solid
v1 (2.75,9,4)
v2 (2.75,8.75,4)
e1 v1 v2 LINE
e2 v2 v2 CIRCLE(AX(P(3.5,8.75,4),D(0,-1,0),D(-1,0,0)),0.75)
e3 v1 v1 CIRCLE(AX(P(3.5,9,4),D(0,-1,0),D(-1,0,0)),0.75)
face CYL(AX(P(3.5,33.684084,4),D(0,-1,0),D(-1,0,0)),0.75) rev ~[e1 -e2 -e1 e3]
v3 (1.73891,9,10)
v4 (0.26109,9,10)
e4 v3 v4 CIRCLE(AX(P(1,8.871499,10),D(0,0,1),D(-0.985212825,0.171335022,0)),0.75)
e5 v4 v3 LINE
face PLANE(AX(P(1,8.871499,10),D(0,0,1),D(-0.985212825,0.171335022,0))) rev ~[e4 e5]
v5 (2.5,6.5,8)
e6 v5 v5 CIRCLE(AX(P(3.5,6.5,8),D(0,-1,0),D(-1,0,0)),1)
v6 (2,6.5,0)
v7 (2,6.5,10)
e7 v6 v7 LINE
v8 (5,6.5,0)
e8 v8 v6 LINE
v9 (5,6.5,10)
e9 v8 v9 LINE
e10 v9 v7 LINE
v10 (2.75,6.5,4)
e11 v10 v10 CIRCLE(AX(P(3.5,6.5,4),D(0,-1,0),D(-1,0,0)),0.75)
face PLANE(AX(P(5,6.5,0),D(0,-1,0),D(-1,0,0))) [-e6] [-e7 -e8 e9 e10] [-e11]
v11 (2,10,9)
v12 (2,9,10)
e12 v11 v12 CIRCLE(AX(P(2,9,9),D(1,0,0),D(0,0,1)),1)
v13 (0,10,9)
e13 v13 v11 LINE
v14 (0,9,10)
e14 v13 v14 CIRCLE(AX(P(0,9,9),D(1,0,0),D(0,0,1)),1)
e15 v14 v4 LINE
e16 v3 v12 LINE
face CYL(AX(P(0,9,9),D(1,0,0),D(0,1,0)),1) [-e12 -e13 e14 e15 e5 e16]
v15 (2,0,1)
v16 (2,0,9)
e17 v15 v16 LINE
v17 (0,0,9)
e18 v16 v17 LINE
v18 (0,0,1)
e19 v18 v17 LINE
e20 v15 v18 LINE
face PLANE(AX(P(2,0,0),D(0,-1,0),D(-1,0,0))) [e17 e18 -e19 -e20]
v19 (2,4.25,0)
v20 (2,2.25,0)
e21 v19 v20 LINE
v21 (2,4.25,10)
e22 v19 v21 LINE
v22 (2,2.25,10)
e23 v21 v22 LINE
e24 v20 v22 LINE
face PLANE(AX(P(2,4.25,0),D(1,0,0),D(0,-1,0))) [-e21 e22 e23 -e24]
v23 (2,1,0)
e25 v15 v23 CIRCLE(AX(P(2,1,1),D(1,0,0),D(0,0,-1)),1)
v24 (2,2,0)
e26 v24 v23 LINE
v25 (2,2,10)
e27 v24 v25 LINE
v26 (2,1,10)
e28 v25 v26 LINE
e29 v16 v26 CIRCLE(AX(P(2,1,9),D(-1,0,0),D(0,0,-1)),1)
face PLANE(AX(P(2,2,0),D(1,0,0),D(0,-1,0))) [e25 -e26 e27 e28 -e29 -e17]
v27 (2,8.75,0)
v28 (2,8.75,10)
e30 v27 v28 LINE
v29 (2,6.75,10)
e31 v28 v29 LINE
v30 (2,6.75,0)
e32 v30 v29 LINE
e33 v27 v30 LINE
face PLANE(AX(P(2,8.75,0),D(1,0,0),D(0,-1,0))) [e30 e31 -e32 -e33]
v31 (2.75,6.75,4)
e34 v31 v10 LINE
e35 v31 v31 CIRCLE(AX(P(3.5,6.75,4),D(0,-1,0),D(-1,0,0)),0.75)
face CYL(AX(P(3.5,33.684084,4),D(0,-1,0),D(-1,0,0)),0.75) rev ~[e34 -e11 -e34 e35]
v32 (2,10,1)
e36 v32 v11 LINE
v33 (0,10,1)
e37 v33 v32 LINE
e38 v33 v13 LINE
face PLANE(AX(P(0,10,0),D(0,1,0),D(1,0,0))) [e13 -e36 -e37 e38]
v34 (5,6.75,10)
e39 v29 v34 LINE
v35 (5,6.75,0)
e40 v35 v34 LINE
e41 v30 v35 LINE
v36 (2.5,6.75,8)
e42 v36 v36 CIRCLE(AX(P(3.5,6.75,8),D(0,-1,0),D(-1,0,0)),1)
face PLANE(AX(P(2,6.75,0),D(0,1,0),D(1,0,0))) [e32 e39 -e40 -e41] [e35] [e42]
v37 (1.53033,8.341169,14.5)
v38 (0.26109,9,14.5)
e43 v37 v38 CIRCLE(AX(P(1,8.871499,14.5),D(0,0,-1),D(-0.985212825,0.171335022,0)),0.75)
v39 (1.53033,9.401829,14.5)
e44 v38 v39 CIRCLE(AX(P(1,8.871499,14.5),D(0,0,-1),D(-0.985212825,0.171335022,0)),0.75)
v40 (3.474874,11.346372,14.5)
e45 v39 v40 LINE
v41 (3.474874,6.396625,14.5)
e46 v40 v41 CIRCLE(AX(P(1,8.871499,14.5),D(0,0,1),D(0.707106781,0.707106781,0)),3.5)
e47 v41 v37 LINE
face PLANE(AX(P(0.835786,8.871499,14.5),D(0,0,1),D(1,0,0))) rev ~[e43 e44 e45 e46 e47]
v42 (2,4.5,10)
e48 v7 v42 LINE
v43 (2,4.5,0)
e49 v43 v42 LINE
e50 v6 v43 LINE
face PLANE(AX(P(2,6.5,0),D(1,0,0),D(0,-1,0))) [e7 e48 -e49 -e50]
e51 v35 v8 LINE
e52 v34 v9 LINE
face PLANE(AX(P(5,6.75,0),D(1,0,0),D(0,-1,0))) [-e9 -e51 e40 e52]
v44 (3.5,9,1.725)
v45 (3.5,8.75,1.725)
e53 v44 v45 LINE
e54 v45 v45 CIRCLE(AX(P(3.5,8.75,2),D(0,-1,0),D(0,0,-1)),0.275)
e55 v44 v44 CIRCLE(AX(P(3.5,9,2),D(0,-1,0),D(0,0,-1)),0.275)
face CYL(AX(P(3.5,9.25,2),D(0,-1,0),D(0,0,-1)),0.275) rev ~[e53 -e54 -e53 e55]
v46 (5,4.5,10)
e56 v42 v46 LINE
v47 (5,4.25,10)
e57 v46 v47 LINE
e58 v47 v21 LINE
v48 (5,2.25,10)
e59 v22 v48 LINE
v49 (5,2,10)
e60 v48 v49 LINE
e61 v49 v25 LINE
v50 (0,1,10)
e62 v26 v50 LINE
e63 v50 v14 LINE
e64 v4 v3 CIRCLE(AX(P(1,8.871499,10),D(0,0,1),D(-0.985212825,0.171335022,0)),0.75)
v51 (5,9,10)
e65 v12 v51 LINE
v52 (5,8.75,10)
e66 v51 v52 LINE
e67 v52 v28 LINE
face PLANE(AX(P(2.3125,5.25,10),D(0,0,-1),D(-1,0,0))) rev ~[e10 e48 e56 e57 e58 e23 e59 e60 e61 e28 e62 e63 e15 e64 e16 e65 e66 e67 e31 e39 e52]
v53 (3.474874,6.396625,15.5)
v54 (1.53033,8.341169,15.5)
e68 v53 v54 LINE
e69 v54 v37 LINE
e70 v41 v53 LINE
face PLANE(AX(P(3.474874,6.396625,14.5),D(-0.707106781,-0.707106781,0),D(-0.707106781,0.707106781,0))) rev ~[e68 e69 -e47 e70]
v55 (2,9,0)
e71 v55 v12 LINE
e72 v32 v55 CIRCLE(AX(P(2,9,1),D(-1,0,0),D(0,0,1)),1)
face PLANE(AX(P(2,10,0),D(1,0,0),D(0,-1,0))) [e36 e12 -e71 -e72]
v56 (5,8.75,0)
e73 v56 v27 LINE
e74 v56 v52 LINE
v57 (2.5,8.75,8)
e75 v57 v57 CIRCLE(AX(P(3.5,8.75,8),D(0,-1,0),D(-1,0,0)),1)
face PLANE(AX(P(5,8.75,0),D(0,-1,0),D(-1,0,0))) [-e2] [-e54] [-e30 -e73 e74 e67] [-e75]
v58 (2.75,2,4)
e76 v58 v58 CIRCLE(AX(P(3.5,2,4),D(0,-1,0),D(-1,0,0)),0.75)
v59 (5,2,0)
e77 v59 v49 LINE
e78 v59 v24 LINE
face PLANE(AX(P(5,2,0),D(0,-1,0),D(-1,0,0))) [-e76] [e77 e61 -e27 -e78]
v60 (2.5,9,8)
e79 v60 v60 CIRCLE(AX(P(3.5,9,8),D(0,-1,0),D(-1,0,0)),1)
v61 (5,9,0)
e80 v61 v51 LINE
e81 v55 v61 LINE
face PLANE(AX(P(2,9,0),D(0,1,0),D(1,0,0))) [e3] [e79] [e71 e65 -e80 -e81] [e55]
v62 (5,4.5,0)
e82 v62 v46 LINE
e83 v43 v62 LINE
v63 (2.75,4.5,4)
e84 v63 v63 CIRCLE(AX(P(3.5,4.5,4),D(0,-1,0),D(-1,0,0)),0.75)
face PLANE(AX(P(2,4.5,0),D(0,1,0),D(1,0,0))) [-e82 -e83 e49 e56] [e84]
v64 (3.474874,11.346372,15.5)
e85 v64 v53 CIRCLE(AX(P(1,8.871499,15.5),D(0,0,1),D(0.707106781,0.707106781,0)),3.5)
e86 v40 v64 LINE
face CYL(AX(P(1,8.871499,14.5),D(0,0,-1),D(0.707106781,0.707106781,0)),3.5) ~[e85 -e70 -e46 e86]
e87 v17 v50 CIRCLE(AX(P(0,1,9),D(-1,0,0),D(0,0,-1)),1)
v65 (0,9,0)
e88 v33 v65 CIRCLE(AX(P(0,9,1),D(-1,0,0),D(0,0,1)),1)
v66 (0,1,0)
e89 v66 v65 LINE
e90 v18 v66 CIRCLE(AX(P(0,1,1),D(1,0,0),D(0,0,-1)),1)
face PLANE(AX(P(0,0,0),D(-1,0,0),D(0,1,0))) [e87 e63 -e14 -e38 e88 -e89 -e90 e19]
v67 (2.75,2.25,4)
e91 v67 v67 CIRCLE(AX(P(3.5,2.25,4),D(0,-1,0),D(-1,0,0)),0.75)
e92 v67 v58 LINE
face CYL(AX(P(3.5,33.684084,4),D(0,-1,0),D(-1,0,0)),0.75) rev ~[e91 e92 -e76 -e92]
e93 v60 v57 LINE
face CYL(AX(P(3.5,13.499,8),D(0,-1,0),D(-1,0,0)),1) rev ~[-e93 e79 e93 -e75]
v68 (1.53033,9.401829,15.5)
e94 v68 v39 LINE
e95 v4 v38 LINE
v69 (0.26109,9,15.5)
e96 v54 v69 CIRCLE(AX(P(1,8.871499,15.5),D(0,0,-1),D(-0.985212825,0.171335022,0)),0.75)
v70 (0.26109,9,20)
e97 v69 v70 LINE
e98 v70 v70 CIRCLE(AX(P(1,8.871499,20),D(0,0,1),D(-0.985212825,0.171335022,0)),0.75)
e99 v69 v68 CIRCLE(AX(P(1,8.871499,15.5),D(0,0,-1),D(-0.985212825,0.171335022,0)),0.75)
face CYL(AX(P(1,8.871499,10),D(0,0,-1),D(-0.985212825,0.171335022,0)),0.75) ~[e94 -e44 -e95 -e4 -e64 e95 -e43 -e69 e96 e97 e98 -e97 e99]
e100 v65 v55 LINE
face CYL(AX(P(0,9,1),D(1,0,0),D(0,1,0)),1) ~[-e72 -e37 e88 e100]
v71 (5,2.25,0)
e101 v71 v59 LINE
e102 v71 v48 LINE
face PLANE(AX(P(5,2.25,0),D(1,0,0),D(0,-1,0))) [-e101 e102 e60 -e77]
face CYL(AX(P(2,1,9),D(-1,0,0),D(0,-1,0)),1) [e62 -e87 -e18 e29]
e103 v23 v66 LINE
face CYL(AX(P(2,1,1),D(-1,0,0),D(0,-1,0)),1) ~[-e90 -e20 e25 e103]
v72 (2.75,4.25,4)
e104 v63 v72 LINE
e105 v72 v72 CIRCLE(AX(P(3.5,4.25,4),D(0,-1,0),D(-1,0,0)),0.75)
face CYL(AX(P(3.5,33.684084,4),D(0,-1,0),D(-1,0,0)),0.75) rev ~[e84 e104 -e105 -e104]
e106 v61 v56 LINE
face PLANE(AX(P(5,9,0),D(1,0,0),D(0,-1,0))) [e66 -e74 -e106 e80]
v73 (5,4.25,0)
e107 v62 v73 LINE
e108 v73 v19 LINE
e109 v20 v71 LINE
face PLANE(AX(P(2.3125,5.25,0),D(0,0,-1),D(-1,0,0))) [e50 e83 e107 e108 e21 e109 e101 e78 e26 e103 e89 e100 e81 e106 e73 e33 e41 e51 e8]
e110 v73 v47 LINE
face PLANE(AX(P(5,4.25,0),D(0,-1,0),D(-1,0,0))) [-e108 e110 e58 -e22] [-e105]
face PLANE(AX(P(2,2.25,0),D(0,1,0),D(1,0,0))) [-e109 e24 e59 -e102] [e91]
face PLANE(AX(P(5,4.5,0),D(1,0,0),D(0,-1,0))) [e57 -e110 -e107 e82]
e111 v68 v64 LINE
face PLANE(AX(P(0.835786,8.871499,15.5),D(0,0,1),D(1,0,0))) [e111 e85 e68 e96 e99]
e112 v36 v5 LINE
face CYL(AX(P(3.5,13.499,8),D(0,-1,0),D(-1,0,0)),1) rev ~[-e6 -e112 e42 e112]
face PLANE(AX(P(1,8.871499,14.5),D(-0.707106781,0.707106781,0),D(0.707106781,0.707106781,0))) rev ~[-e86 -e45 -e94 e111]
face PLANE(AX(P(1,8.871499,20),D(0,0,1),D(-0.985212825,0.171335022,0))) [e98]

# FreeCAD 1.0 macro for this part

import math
import FreeCAD as App
import Part
import Sketcher

V = App.Vector


def edges_at(feature, points):
    """Names of the edges that pass closest to the given points."""
    edges = feature.Shape.Edges
    near = lambda p: min(range(len(edges)), key=lambda i: edges[i].distToShape(Part.Vertex(*p))[0])
    return sorted({f"Edge{near(p) + 1}" for p in points})

doc = App.newDocument("Part")
body = doc.addObject("PartDesign::Body", "Body")

sketch1 = doc.addObject("Sketcher::SketchObject", "Sketch")
body.addObject(sketch1)
sketch1.AttachmentSupport = (doc.XY_Plane, [""])
sketch1.MapMode = "FlatFace"
sketch1.addGeometry([
    Part.LineSegment(V(0, 10, 0), V(0, 0, 0)),
    Part.LineSegment(V(0, 0, 0), V(2, 0, 0)),
    Part.LineSegment(V(2, 0, 0), V(2, 2, 0)),
    Part.LineSegment(V(2, 2, 0), V(5, 2, 0)),
    Part.LineSegment(V(5, 2, 0), V(5, 2.25, 0)),
    Part.LineSegment(V(5, 2.25, 0), V(2, 2.25, 0)),
    Part.LineSegment(V(2, 2.25, 0), V(2, 4.25, 0)),
    Part.LineSegment(V(2, 4.25, 0), V(5, 4.25, 0)),
    Part.LineSegment(V(5, 4.25, 0), V(5, 4.5, 0)),
    Part.LineSegment(V(5, 4.5, 0), V(2, 4.5, 0)),
    Part.LineSegment(V(2, 4.5, 0), V(2, 6.5, 0)),
    Part.LineSegment(V(2, 6.5, 0), V(5, 6.5, 0)),
    Part.LineSegment(V(5, 6.5, 0), V(5, 6.75, 0)),
    Part.LineSegment(V(5, 6.75, 0), V(2, 6.75, 0)),
    Part.LineSegment(V(2, 6.75, 0), V(2, 8.75, 0)),
    Part.LineSegment(V(2, 8.75, 0), V(5, 8.75, 0)),
    Part.LineSegment(V(5, 8.75, 0), V(5, 9, 0)),
    Part.LineSegment(V(5, 9, 0), V(2, 9, 0)),
    Part.LineSegment(V(2, 9, 0), V(2, 10, 0)),
    Part.LineSegment(V(2, 10, 0), V(0, 10, 0)),
], False)
sketch1.addConstraint([
    Sketcher.Constraint("Coincident", 0, 2, 1, 1),
    Sketcher.Constraint("Coincident", 1, 2, 2, 1),
    Sketcher.Constraint("Coincident", 2, 2, 3, 1),
    Sketcher.Constraint("Coincident", 3, 2, 4, 1),
    Sketcher.Constraint("Coincident", 4, 2, 5, 1),
    Sketcher.Constraint("Coincident", 5, 2, 6, 1),
    Sketcher.Constraint("Coincident", 6, 2, 7, 1),
    Sketcher.Constraint("Coincident", 7, 2, 8, 1),
    Sketcher.Constraint("Coincident", 8, 2, 9, 1),
    Sketcher.Constraint("Coincident", 9, 2, 10, 1),
    Sketcher.Constraint("Coincident", 10, 2, 11, 1),
    Sketcher.Constraint("Coincident", 11, 2, 12, 1),
    Sketcher.Constraint("Coincident", 12, 2, 13, 1),
    Sketcher.Constraint("Coincident", 13, 2, 14, 1),
    Sketcher.Constraint("Coincident", 14, 2, 15, 1),
    Sketcher.Constraint("Coincident", 15, 2, 16, 1),
    Sketcher.Constraint("Coincident", 16, 2, 17, 1),
    Sketcher.Constraint("Coincident", 17, 2, 18, 1),
    Sketcher.Constraint("Coincident", 18, 2, 19, 1),
    Sketcher.Constraint("Coincident", 19, 2, 0, 1),
    Sketcher.Constraint("Vertical", 0),
    Sketcher.Constraint("Horizontal", 1),
    Sketcher.Constraint("Vertical", 2),
    Sketcher.Constraint("Horizontal", 3),
    Sketcher.Constraint("Vertical", 4),
    Sketcher.Constraint("Horizontal", 5),
    Sketcher.Constraint("Vertical", 6),
    Sketcher.Constraint("Horizontal", 7),
    Sketcher.Constraint("Vertical", 8),
    Sketcher.Constraint("Horizontal", 9),
    Sketcher.Constraint("Vertical", 10),
    Sketcher.Constraint("Horizontal", 11),
    Sketcher.Constraint("Vertical", 12),
    Sketcher.Constraint("Horizontal", 13),
    Sketcher.Constraint("Vertical", 14),
    Sketcher.Constraint("Horizontal", 15),
    Sketcher.Constraint("Vertical", 16),
    Sketcher.Constraint("Horizontal", 17),
    Sketcher.Constraint("Vertical", 18),
    Sketcher.Constraint("Horizontal", 19),
    Sketcher.Constraint("Coincident", 0, 2, -1, 1),
    Sketcher.Constraint("Vertical", 2, 2, 5, 2),
    Sketcher.Constraint("Vertical", 4, 2, 7, 2),
    Sketcher.Constraint("Vertical", 6, 2, 9, 2),
    Sketcher.Constraint("Vertical", 8, 2, 11, 2),
    Sketcher.Constraint("Vertical", 10, 2, 13, 2),
    Sketcher.Constraint("Vertical", 12, 2, 15, 2),
    Sketcher.Constraint("Vertical", 14, 2, 17, 2),
    Sketcher.Constraint("Equal", 19, 2),
    Sketcher.Constraint("Equal", 2, 6),
    Sketcher.Constraint("Equal", 4, 8),
    Sketcher.Constraint("Equal", 6, 10),
    Sketcher.Constraint("Equal", 8, 12),
    Sketcher.Constraint("Equal", 10, 14),
    Sketcher.Constraint("Equal", 12, 16),
    Sketcher.Constraint("DistanceX", 1, 1, 1, 2, 2.0),
    Sketcher.Constraint("DistanceX", 3, 1, 3, 2, 3.0),
    Sketcher.Constraint("DistanceY", 0, 2, 0, 1, 10.0),
    Sketcher.Constraint("DistanceY", 18, 1, 18, 2, 1.0),
])
pad1 = doc.addObject("PartDesign::Pad", "Pad")
body.addObject(pad1)
pad1.Profile = sketch1
pad1.Length = 10
doc.recompute()

fillet = doc.addObject("PartDesign::Fillet", "Fillet")
body.addObject(fillet)
fillet.Base = (pad1, edges_at(pad1, [
    (1, 10, 0),
    (1, 0, 0),
    (1, 0, 10),
    (1, 10, 10),
]))
fillet.Radius = 1

sketch2 = doc.addObject("Sketcher::SketchObject", "Sketch001")
body.addObject(sketch2)
sketch2.AttachmentSupport = (doc.XY_Plane, [""])
sketch2.MapMode = "FlatFace"
sketch2.AttachmentOffset = App.Placement(V(0, 0, 10), App.Rotation())
sketch2.addGeometry(Part.Circle(V(1, 8.9, 0), V(0, 0, 1), 0.8), False)
sketch2.addConstraint([
    Sketcher.Constraint("Diameter", 0, 1.5),
    Sketcher.Constraint("DistanceX", -1, 1, 0, 3, 1.0),
    Sketcher.Constraint("DistanceY", -1, 1, 0, 3, 8.871499),
])
pad2 = doc.addObject("PartDesign::Pad", "Pad001")
body.addObject(pad2)
pad2.Profile = sketch2
pad2.Length = 10

sketch3 = doc.addObject("Sketcher::SketchObject", "Sketch002")
body.addObject(sketch3)
sketch3.AttachmentSupport = (doc.XY_Plane, [""])
sketch3.MapMode = "FlatFace"
sketch3.AttachmentOffset = App.Placement(V(0, 0, 14.5), App.Rotation())
sketch3.addGeometry([
    Part.LineSegment(V(1, 8.9, 0), V(3.5, 11.3, 0)),
    Part.ArcOfCircle(Part.Circle(V(1, 8.9, 0), V(0, 0, 1), 3.5), math.radians(45), math.radians(315)),
    Part.LineSegment(V(3.5, 6.4, 0), V(1, 8.9, 0)),
], False)
sketch3.addConstraint([
    Sketcher.Constraint("Coincident", 0, 2, 1, 1),
    Sketcher.Constraint("Coincident", 1, 2, 2, 1),
    Sketcher.Constraint("Coincident", 2, 2, 0, 1),
    Sketcher.Constraint("Coincident", 2, 2, 1, 3),
    Sketcher.Constraint("Perpendicular", 0, 2),
    Sketcher.Constraint("Vertical", 0, 2, 1, 2),
    Sketcher.Constraint("Radius", 1, 3.5),
    Sketcher.Constraint("DistanceX", -1, 1, 1, 3, 1.0),
    Sketcher.Constraint("DistanceY", -1, 1, 1, 3, 8.871499),
])
pad3 = doc.addObject("PartDesign::Pad", "Pad002")
body.addObject(pad3)
pad3.Profile = sketch3
pad3.Length = 1

sketch4 = doc.addObject("Sketcher::SketchObject", "Sketch003")
body.addObject(sketch4)
sketch4.AttachmentSupport = (doc.XZ_Plane, [""])
sketch4.MapMode = "FlatFace"
sketch4.AttachmentOffset = App.Placement(V(0, 0, -9), App.Rotation())
sketch4.addGeometry(Part.Circle(V(3.5, 2, 0), V(0, 0, 1), 0.28), False)
sketch4.addConstraint([
    Sketcher.Constraint("Diameter", 0, 0.55),
    Sketcher.Constraint("DistanceY", -1, 1, 0, 3, 2.0),
    Sketcher.Constraint("DistanceX", -1, 1, 0, 3, 3.5),
])
doc.recompute()
hole = doc.addObject("PartDesign::Hole", "Hole")
body.addObject(hole)
hole.Profile = sketch4
hole.ThreadType = "None"
hole.Diameter = 0.55
hole.DepthType = "Dimension"
hole.Depth = 0.25
hole.DrillPoint = "Flat"
hole.Reversed = True

sketch5 = doc.addObject("Sketcher::SketchObject", "Sketch004")
body.addObject(sketch5)
sketch5.AttachmentSupport = (doc.XZ_Plane, [""])
sketch5.MapMode = "FlatFace"
sketch5.AttachmentOffset = App.Placement(V(0, 0, -9), App.Rotation())
sketch5.addGeometry(Part.Circle(V(3.5, 4, 0), V(0, 0, 1), 0.8), False)
sketch5.addConstraint([
    Sketcher.Constraint("Diameter", 0, 1.5),
    Sketcher.Constraint("DistanceY", -1, 1, 0, 3, 4.0),
    Sketcher.Constraint("DistanceX", -1, 1, 0, 3, 3.5),
])
doc.recompute()
hole2 = doc.addObject("PartDesign::Hole", "Hole001")
body.addObject(hole2)
hole2.Profile = sketch5
hole2.ThreadType = "None"
hole2.Diameter = 1.5
hole2.DepthType = "ThroughAll"
hole2.Reversed = True

sketch6 = doc.addObject("Sketcher::SketchObject", "Sketch005")
body.addObject(sketch6)
sketch6.AttachmentSupport = (doc.XZ_Plane, [""])
sketch6.MapMode = "FlatFace"
sketch6.AttachmentOffset = App.Placement(V(0, 0, -9), App.Rotation())
sketch6.addGeometry(Part.Circle(V(3.5, 8, 0), V(0, 0, 1), 1), False)
sketch6.addConstraint([
    Sketcher.Constraint("Diameter", 0, 2.0),
    Sketcher.Constraint("DistanceY", -1, 1, 0, 3, 8.0),
    Sketcher.Constraint("DistanceX", -1, 1, 0, 3, 3.5),
])
doc.recompute()
hole3 = doc.addObject("PartDesign::Hole", "Hole002")
body.addObject(hole3)
hole3.Profile = sketch6
hole3.ThreadType = "None"
hole3.Diameter = 2
hole3.DepthType = "Dimension"
hole3.Depth = 4.499
hole3.DrillPoint = "Flat"
hole3.Reversed = True

doc.recompute()
